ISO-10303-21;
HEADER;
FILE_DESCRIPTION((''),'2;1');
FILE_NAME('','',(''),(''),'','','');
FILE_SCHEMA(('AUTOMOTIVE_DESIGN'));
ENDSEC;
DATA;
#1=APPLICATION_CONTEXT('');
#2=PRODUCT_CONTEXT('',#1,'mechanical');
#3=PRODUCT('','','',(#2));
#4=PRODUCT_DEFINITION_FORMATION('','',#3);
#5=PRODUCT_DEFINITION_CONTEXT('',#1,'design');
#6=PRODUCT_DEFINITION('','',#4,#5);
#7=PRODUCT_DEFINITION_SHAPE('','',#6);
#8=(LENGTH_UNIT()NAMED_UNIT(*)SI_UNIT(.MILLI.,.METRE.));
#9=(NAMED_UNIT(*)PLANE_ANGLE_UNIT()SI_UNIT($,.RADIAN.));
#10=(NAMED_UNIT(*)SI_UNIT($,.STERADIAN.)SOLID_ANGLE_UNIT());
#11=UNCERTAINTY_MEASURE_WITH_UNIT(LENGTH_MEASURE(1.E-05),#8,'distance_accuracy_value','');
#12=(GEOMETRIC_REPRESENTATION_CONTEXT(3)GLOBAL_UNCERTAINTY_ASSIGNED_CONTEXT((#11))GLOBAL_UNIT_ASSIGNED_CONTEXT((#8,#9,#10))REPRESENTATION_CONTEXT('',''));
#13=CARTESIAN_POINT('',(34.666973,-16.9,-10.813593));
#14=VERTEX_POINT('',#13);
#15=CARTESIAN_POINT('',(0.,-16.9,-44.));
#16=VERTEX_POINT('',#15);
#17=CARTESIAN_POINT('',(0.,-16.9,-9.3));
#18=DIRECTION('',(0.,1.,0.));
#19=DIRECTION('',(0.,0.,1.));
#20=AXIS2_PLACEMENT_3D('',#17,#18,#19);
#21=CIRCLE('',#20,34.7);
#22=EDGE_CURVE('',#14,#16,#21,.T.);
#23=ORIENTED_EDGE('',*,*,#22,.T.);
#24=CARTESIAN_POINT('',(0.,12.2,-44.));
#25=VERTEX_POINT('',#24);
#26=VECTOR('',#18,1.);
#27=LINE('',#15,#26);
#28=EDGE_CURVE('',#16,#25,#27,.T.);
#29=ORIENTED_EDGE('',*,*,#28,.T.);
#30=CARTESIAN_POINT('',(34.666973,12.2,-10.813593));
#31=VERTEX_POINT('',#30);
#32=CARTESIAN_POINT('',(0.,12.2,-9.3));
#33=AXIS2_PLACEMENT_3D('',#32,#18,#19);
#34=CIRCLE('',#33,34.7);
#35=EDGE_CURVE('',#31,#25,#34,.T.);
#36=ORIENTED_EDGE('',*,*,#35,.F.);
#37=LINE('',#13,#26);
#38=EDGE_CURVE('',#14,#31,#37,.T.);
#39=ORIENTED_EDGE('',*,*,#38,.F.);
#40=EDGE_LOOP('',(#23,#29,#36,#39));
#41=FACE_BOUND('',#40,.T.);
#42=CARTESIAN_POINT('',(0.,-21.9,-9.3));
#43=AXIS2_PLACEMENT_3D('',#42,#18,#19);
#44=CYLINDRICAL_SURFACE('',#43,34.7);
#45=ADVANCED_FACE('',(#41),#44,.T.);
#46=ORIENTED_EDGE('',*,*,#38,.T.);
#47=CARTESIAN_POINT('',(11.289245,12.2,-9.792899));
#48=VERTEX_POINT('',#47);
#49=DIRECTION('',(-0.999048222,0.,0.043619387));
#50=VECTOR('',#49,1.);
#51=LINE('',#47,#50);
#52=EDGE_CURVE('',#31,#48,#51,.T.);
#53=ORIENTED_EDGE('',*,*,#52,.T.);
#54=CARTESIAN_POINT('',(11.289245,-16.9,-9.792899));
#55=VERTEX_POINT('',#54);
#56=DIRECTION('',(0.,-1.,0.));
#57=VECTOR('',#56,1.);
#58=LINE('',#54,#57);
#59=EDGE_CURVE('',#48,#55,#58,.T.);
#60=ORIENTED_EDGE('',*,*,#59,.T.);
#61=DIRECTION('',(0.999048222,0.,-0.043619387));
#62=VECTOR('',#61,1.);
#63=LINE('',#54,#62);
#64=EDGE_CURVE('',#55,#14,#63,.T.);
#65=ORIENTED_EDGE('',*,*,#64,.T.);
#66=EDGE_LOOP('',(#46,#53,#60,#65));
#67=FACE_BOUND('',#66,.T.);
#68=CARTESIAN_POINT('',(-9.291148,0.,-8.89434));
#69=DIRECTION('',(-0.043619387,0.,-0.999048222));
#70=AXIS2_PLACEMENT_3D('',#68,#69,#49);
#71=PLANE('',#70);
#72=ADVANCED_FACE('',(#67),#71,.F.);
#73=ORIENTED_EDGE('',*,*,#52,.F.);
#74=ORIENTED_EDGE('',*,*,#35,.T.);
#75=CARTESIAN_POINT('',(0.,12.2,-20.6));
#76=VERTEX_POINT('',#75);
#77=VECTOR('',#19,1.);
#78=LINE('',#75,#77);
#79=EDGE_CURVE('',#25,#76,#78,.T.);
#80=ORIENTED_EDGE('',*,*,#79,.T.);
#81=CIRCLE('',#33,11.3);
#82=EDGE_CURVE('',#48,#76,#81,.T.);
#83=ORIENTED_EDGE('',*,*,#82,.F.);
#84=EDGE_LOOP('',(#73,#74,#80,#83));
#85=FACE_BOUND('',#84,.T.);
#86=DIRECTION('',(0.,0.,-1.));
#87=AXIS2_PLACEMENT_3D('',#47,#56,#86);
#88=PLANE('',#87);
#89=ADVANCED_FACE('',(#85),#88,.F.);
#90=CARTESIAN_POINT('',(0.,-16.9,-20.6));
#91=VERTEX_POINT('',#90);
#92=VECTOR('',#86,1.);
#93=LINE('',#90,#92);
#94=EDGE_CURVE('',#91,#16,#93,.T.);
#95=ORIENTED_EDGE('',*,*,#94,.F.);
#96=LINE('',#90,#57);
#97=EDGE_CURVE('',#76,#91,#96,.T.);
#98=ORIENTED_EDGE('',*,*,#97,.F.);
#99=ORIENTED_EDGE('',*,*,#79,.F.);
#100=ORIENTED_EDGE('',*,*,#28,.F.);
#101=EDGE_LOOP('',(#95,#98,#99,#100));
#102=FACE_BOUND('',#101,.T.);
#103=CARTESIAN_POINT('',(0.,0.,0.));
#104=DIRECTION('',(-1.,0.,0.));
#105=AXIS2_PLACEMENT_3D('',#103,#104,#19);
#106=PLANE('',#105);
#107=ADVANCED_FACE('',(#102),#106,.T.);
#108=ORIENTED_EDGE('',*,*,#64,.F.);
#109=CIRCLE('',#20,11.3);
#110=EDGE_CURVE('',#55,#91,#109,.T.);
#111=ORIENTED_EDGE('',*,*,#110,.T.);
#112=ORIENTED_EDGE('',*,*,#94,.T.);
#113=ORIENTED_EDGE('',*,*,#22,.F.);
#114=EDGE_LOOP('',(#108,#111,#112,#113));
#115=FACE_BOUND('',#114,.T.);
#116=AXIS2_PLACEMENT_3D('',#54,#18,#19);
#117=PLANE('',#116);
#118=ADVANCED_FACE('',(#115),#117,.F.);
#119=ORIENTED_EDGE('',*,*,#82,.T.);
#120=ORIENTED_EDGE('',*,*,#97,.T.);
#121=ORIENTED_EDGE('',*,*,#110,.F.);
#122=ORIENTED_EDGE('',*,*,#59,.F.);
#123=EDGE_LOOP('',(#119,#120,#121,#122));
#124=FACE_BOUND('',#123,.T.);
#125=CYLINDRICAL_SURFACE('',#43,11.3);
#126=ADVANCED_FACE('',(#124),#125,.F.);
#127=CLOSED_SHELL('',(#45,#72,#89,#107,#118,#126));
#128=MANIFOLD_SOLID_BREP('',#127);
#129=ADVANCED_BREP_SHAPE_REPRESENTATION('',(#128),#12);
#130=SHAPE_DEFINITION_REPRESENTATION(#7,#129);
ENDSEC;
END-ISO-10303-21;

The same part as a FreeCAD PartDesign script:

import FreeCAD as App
import Part
import Sketcher
from FreeCAD import Vector

doc = App.newDocument("Part")
params = doc.addObject("Spreadsheet::Sheet", "Params")
for row, (alias, value) in enumerate([
    ("sketch1_width", "29.1 mm"),
    ("sketch1_height", "23.4 mm"),
    ("revolution_angle", "87.5 deg"),
], start=1):
    params.set(f"A{row}", alias)
    params.set(f"B{row}", "=" + value)
    params.setAlias(f"B{row}", alias)

body = doc.addObject("PartDesign::Body", "Body")

# Sketch on YZ plane
sketch1 = body.newObject("Sketcher::SketchObject", "Sketch")
sketch1.AttachmentSupport = (doc.getObject("YZ_Plane"), [""])
sketch1.MapMode = "FlatFace"
sketch1.addGeometry(Part.LineSegment(Vector(12, -21, 0), Vector(-17, -21, 0)), False)
sketch1.addGeometry(Part.LineSegment(Vector(-17, -21, 0), Vector(-17, -44, 0)), False)
sketch1.addGeometry(Part.LineSegment(Vector(-17, -44, 0), Vector(12, -44, 0)), False)
sketch1.addGeometry(Part.LineSegment(Vector(12, -44, 0), Vector(12, -21, 0)), False)
sketch1.addGeometry(Part.LineSegment(Vector(12, -9, 0), Vector(-17, -9, 0)), True)  # axis
sketch1.addConstraint(Sketcher.Constraint("Coincident", 0, 2, 1, 1))
sketch1.addConstraint(Sketcher.Constraint("Coincident", 1, 2, 2, 1))
sketch1.addConstraint(Sketcher.Constraint("Coincident", 2, 2, 3, 1))
sketch1.addConstraint(Sketcher.Constraint("Coincident", 3, 2, 0, 1))
sketch1.addConstraint(Sketcher.Constraint("Horizontal", 0))
sketch1.addConstraint(Sketcher.Constraint("Vertical", 1))
sketch1.addConstraint(Sketcher.Constraint("Horizontal", 2))
sketch1.addConstraint(Sketcher.Constraint("Vertical", 3))
sketch1.addConstraint(Sketcher.Constraint("Horizontal", 4))
sketch1.addConstraint(Sketcher.Constraint("Vertical", 3, 2, 4, 1))
sketch1.addConstraint(Sketcher.Constraint("Vertical", 1, 2, 4, 2))
sketch1.addConstraint(Sketcher.Constraint("DistanceX", 0, 2, 0, 1, 29.1))
sketch1.addConstraint(Sketcher.Constraint("DistanceY", 1, 2, 1, 1, 23.4))
sketch1.addConstraint(Sketcher.Constraint("DistanceY", 1, 2, -1, 1, 44.0))
sketch1.addConstraint(Sketcher.Constraint("DistanceX", 0, 2, -1, 1, 16.9))
sketch1.addConstraint(Sketcher.Constraint("DistanceY", 4, 1, -1, 1, 9.3))
sketch1.setExpression("Constraints[11]", "Params.sketch1_width")
sketch1.setExpression("Constraints[12]", "Params.sketch1_height")
revolution = body.newObject("PartDesign::Revolution", "Revolution")
revolution.Profile = sketch1
revolution.ReferenceAxis = (sketch1, ["Axis0"])
revolution.setExpression("Angle", "Params.revolution_angle")

doc.recompute()
